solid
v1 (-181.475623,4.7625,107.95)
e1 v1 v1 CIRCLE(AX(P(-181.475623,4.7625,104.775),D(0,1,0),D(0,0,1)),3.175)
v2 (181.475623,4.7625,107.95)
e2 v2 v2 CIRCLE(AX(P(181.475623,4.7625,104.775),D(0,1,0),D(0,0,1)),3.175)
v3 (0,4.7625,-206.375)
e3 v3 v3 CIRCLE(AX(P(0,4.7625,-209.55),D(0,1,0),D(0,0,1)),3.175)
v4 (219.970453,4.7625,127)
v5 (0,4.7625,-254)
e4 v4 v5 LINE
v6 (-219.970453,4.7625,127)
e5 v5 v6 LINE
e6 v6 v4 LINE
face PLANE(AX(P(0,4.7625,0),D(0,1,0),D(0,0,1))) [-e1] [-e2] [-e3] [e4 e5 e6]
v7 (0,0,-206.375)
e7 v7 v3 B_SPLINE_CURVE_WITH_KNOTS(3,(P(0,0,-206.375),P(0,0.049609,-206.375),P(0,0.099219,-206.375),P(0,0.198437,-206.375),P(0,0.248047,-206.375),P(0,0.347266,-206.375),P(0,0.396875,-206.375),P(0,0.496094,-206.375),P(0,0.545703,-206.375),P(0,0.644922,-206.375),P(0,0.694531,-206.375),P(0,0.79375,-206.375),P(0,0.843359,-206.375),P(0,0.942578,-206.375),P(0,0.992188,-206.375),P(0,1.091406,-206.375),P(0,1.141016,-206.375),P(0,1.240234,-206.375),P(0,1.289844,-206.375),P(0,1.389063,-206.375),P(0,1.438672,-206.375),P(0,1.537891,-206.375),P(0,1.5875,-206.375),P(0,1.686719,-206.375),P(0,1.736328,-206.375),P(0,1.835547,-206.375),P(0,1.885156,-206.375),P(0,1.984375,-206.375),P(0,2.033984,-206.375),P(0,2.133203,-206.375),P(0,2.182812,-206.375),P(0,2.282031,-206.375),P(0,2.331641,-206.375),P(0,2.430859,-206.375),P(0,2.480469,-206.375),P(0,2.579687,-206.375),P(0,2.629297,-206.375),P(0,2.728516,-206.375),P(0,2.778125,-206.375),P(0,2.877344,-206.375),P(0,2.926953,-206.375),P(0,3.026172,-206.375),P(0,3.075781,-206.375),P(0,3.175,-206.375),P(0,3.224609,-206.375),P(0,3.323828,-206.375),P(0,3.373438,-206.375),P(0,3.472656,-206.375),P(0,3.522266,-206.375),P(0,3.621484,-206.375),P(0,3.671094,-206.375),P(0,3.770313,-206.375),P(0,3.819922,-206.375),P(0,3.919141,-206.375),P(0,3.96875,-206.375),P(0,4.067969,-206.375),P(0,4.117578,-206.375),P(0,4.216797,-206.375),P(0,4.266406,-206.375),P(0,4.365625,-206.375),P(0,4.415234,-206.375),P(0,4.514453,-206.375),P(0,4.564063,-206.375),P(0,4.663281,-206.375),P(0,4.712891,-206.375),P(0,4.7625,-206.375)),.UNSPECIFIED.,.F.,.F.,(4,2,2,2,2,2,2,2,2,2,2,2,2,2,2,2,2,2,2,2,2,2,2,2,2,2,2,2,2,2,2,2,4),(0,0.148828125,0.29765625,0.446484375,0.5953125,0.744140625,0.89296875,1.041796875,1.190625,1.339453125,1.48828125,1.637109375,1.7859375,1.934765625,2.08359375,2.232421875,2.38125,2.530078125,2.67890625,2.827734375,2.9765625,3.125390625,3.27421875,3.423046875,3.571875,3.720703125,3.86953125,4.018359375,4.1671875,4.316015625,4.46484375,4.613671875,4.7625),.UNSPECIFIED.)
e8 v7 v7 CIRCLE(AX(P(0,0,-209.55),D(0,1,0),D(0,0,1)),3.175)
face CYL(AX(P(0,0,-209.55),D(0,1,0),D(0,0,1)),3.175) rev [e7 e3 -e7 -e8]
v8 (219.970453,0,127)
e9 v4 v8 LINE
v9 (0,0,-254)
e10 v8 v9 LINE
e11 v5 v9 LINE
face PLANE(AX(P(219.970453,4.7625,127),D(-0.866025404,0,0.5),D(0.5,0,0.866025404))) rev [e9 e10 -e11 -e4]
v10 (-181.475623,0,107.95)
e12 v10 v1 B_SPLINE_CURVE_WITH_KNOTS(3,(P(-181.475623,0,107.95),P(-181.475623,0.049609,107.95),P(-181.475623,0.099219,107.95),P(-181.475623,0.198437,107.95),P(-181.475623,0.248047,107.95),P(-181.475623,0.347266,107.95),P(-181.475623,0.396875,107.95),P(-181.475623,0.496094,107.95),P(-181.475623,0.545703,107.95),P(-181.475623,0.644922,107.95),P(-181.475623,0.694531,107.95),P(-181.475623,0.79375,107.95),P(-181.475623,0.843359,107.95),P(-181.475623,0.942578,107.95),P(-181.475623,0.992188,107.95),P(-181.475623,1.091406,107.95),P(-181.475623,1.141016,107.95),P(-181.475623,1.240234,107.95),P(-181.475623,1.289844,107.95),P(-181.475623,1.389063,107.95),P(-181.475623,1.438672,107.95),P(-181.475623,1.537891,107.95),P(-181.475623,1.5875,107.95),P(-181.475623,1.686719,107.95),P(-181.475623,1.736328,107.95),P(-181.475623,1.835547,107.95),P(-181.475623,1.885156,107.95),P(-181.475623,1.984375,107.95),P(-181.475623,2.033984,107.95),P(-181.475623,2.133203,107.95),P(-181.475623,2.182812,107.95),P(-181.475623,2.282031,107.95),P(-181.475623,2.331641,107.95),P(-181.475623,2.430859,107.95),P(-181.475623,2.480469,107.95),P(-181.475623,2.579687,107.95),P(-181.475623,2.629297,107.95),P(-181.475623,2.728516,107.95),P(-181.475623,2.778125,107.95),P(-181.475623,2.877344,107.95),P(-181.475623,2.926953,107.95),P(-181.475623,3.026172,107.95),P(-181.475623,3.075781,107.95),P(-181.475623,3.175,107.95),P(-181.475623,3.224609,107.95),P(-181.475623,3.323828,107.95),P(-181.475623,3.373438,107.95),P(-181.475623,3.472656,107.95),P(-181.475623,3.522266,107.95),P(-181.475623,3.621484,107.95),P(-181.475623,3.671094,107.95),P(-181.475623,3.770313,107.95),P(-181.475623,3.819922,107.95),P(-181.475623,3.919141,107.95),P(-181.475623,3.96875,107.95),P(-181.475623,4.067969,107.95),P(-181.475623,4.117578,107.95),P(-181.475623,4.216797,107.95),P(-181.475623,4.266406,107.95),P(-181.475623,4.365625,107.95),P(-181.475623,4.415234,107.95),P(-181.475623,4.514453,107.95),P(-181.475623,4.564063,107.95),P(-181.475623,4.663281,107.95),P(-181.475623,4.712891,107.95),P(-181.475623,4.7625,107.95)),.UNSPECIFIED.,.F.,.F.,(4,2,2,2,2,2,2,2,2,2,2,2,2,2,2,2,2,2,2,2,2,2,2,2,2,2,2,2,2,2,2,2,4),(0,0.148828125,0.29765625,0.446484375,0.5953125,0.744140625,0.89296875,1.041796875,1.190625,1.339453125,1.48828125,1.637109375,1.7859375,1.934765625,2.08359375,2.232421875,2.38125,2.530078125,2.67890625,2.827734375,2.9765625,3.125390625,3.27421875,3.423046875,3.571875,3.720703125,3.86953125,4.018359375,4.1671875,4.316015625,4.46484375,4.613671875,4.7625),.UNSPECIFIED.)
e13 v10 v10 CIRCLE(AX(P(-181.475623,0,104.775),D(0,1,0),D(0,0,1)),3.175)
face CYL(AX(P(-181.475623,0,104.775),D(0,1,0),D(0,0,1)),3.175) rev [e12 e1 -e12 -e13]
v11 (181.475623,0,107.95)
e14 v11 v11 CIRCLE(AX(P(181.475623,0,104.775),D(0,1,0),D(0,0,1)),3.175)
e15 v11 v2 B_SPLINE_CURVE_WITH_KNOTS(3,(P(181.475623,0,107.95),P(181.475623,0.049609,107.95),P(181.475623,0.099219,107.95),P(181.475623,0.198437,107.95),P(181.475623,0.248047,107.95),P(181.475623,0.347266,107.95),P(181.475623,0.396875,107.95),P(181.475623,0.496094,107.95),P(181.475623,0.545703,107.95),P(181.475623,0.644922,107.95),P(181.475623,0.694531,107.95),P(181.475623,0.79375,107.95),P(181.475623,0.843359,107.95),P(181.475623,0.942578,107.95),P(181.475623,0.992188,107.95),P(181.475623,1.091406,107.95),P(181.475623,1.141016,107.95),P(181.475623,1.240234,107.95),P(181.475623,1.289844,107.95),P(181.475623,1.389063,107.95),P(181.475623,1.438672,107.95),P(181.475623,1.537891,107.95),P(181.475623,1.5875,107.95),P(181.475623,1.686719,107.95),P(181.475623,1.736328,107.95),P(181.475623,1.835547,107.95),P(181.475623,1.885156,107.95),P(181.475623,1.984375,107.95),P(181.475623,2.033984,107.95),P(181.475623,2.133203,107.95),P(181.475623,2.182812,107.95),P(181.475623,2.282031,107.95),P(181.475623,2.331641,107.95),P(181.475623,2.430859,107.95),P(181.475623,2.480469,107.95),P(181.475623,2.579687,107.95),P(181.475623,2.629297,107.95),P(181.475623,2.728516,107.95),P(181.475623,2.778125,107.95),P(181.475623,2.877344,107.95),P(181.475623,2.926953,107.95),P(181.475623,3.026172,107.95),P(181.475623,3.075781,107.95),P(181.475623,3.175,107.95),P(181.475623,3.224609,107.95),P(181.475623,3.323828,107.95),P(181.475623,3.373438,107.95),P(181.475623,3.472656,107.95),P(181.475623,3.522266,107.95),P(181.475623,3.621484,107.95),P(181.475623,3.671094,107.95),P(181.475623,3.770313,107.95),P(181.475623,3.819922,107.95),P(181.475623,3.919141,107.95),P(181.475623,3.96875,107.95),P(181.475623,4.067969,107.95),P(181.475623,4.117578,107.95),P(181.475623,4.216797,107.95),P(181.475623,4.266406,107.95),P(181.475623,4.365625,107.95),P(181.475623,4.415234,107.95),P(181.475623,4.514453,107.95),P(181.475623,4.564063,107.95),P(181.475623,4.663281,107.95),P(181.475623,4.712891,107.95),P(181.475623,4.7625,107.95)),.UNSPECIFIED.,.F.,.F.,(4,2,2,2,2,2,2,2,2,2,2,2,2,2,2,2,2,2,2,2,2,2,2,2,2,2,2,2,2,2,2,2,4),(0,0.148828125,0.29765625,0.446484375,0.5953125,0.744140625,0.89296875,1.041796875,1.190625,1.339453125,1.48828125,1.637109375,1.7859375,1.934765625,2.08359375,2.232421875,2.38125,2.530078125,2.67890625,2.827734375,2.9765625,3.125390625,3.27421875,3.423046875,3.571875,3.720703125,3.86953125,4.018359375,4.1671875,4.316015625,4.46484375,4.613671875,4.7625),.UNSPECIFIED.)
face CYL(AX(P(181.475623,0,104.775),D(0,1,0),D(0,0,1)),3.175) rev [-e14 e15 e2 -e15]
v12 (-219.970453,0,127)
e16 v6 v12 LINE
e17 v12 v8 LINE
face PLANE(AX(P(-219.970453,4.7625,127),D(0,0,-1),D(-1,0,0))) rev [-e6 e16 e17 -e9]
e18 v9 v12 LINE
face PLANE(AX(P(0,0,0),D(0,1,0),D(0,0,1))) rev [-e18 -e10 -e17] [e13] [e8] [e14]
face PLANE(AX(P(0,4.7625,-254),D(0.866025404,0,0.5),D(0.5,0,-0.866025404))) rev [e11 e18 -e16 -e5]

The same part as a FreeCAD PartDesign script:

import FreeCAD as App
import Part
import Sketcher
from FreeCAD import Vector
Q = App.Units.Quantity


def add_polygon(sketch, points):
    """Adds a closed chain of lines whose ends are joined by coincident constraints."""
    first, n = sketch.GeometryCount, len(points)
    for a, b in zip(points, points[1:] + points[:1]):
        sketch.addGeometry(Part.LineSegment(App.Vector(*a, 0), App.Vector(*b, 0)), False)
    for i in range(n):
        sketch.addConstraint(Sketcher.Constraint("Coincident", first + i, 2, first + (i + 1) % n, 1))

doc = App.newDocument("Part")
body = doc.addObject("PartDesign::Body", "Body")

sketch1 = doc.addObject("Sketcher::SketchObject", "Sketch")
body.addObject(sketch1)
sketch1.AttachmentSupport = (doc.XZ_Plane, [""])
sketch1.MapMode = "FlatFace"
add_polygon(sketch1, [(0, -254), (-220, 127), (220, 127)])
sketch1.addConstraint([
    Sketcher.Constraint("Horizontal", 1),
    Sketcher.Constraint("PointOnObject", 2, 2, -2),
    Sketcher.Constraint("Equal", 0, 2),
    Sketcher.Constraint("DistanceY", -1, 1, 0, 2, Q("5 in")),
    Sketcher.Constraint("DistanceY", 2, 2, -1, 1, Q("10 in")),
    Sketcher.Constraint("Angle", 0, Q("120 deg")),
])
pad1 = doc.addObject("PartDesign::Pad", "Pad")
body.addObject(pad1)
pad1.Profile = sketch1
pad1.Length = Q("0.1875 in")
pad1.Reversed = True

sketch2 = doc.addObject("Sketcher::SketchObject", "Sketch001")
body.addObject(sketch2)
sketch2.AttachmentSupport = (doc.XZ_Plane, [""])
sketch2.MapMode = "FlatFace"
sketch2.AttachmentOffset = App.Placement(Vector(0, 0, -0.1875 * 25.4), App.Rotation())
sketch2.addGeometry([
    Part.Circle(Vector(0, -209.6, 0), Vector(0, 0, 1), 3.2),
    Part.Circle(Vector(-181.5, 104.8, 0), Vector(0, 0, 1), 3.2),
    Part.Circle(Vector(181.5, 104.8, 0), Vector(0, 0, 1), 3.2),
], False)
sketch2.addConstraint([
    Sketcher.Constraint("Equal", 0, 1),
    Sketcher.Constraint("Equal", 1, 2),
    Sketcher.Constraint("Symmetric", 1, 3, 2, 3, -2),
    Sketcher.Constraint("PointOnObject", 0, 3, -2),
    Sketcher.Constraint("Diameter", 0, Q("0.25 in")),
    Sketcher.Constraint("DistanceY", 0, 3, -1, 1, Q("8.25 in")),
    Sketcher.Constraint("DistanceY", -1, 1, 1, 3, Q("4.125 in")),
    Sketcher.Constraint("DistanceX", 1, 3, -1, 1, 181.475623),
])
pocket1 = doc.addObject("PartDesign::Pocket", "Pocket")
body.addObject(pocket1)
pocket1.Profile = sketch2
pocket1.Type = "ThroughAll"
pocket1.Reversed = True

doc.recompute()
